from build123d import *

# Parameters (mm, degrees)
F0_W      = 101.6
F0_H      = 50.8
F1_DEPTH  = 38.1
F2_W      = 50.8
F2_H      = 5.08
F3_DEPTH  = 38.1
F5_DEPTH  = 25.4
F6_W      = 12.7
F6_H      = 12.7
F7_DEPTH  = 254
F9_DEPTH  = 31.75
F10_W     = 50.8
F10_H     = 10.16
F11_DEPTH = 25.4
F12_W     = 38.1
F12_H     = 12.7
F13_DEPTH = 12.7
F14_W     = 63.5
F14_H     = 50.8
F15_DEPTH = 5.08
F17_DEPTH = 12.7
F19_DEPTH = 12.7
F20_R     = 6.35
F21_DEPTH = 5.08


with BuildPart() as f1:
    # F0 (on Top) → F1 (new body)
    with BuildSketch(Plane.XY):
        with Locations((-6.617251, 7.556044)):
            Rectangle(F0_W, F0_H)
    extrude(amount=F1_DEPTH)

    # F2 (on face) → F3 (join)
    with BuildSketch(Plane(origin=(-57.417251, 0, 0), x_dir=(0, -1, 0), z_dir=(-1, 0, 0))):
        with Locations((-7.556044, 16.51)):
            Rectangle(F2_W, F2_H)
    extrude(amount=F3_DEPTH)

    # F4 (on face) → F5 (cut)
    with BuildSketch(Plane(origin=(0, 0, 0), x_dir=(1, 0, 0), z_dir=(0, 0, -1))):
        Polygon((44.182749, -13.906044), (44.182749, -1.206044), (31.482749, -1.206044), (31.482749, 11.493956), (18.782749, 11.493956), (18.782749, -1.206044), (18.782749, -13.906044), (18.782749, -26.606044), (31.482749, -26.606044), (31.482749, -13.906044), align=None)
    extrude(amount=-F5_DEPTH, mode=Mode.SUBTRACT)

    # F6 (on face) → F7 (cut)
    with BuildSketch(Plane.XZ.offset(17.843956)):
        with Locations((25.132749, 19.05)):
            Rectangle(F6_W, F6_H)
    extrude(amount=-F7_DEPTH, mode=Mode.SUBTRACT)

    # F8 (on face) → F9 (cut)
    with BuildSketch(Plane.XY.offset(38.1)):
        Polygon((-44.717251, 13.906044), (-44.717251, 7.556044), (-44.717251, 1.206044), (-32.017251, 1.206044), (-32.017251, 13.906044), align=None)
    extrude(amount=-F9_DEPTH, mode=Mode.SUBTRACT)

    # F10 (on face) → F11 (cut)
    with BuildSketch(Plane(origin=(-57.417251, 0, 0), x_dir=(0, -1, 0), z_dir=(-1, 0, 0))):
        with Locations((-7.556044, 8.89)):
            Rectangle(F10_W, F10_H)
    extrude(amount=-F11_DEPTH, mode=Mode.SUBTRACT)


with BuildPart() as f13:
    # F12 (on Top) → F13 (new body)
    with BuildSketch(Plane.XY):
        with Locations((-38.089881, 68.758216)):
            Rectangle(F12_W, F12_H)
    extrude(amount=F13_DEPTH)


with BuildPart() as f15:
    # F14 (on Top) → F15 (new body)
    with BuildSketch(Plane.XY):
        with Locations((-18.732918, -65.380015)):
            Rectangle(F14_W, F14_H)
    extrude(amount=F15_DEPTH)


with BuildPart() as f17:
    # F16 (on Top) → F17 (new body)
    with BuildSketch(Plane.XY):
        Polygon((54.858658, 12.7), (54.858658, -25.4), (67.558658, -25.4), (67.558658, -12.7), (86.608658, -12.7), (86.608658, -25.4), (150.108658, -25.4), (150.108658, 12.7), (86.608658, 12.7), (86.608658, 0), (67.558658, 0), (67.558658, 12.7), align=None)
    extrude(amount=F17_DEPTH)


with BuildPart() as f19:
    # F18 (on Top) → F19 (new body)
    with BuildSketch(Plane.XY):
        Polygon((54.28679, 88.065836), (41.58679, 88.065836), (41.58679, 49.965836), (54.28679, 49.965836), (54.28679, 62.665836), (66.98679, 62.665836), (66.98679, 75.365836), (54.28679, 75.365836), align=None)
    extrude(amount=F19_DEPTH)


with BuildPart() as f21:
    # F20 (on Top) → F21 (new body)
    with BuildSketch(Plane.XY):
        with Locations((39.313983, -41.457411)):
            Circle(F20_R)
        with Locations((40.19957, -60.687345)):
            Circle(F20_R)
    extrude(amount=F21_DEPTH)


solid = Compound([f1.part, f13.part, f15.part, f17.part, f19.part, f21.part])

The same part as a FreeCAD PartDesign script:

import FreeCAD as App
import Part
import Sketcher

V = App.Vector
Q = App.Units.Quantity

doc = App.newDocument("Part")
body = doc.addObject("PartDesign::Body", "Body")

# Sketch on XY plane
sketch1 = body.newObject("Sketcher::SketchObject", "Sketch")
sketch1.AttachmentSupport = (doc.getObject("XY_Plane"), [""])
sketch1.MapMode = "FlatFace"
sketch1.addGeometry([
    Part.LineSegment(V(-57, 33, 0), V(-57, -18, 0)),
    Part.LineSegment(V(-57, -18, 0), V(44, -18, 0)),
    Part.LineSegment(V(44, -18, 0), V(44, 33, 0)),
    Part.LineSegment(V(44, 33, 0), V(-57, 33, 0)),
], False)
sketch1.addConstraint([
    Sketcher.Constraint("Coincident", 0, 2, 1, 1),
    Sketcher.Constraint("Coincident", 1, 2, 2, 1),
    Sketcher.Constraint("Coincident", 2, 2, 3, 1),
    Sketcher.Constraint("Coincident", 3, 2, 0, 1),
    Sketcher.Constraint("Vertical", 0),
    Sketcher.Constraint("Horizontal", 1),
    Sketcher.Constraint("Vertical", 2),
    Sketcher.Constraint("Horizontal", 3),
    Sketcher.Constraint("DistanceX", 1, 1, 1, 2, Q("4 in")),
    Sketcher.Constraint("DistanceY", 0, 2, 0, 1, Q("2 in")),
    Sketcher.Constraint("DistanceX", 0, 2, -1, 1, Q("57.417251 mm")),
    Sketcher.Constraint("DistanceY", 0, 2, -1, 1, Q("17.843956 mm")),
])
pad1 = body.newObject("PartDesign::Pad", "Pad")
pad1.Profile = sketch1
pad1.Length = Q("1.5 in")

# Sketch on YZ plane
sketch2 = body.newObject("Sketcher::SketchObject", "Sketch001")
sketch2.AttachmentSupport = (doc.getObject("YZ_Plane"), [""])
sketch2.MapMode = "FlatFace"
sketch2.AttachmentOffset = App.Placement(V(0, 0, -57.417251), App.Rotation())
sketch2.addGeometry([
    Part.LineSegment(V(33, 19, 0), V(33, 14, 0)),
    Part.LineSegment(V(33, 14, 0), V(-18, 14, 0)),
    Part.LineSegment(V(-18, 14, 0), V(-18, 19, 0)),
    Part.LineSegment(V(-18, 19, 0), V(33, 19, 0)),
], False)
sketch2.addConstraint([
    Sketcher.Constraint("Coincident", 0, 2, 1, 1),
    Sketcher.Constraint("Coincident", 1, 2, 2, 1),
    Sketcher.Constraint("Coincident", 2, 2, 3, 1),
    Sketcher.Constraint("Coincident", 3, 2, 0, 1),
    Sketcher.Constraint("Vertical", 0),
    Sketcher.Constraint("Horizontal", 1),
    Sketcher.Constraint("Vertical", 2),
    Sketcher.Constraint("Horizontal", 3),
    Sketcher.Constraint("DistanceX", 1, 2, 1, 1, Q("2 in")),
    Sketcher.Constraint("DistanceY", 0, 2, 0, 1, Q("0.2 in")),
    Sketcher.Constraint("DistanceY", -1, 1, 0, 2, Q("0.55 in")),
    Sketcher.Constraint("DistanceX", -1, 1, 0, 2, Q("32.956044 mm")),
])
pad2 = body.newObject("PartDesign::Pad", "Pad001")
pad2.Profile = sketch2
pad2.Length = Q("1.5 in")
pad2.Reversed = True

# Sketch on XY plane
sketch3 = body.newObject("Sketcher::SketchObject", "Sketch002")
sketch3.AttachmentSupport = (doc.getObject("XY_Plane"), [""])
sketch3.MapMode = "FlatFace"
sketch3.addGeometry([
    Part.LineSegment(V(44, 14, 0), V(44, 1, 0)),  # 0
    Part.LineSegment(V(44, 1, 0), V(31, 1, 0)),  # 1
    Part.LineSegment(V(31, 1, 0), V(31, -11, 0)),  # 2
    Part.LineSegment(V(31, -11, 0), V(19, -11, 0)),  # 3
    Part.LineSegment(V(19, -11, 0), V(19, 27, 0)),  # 4
    Part.LineSegment(V(19, 27, 0), V(31, 27, 0)),  # 5
    Part.LineSegment(V(31, 27, 0), V(31, 14, 0)),  # 6
    Part.LineSegment(V(31, 14, 0), V(44, 14, 0)),  # 7
], False)
sketch3.addConstraint([
    Sketcher.Constraint("Coincident", 0, 2, 1, 1),
    Sketcher.Constraint("Coincident", 1, 2, 2, 1),
    Sketcher.Constraint("Coincident", 2, 2, 3, 1),
    Sketcher.Constraint("Coincident", 3, 2, 4, 1),
    Sketcher.Constraint("Coincident", 4, 2, 5, 1),
    Sketcher.Constraint("Coincident", 5, 2, 6, 1),
    Sketcher.Constraint("Coincident", 6, 2, 7, 1),
    Sketcher.Constraint("Coincident", 7, 2, 0, 1),
    Sketcher.Constraint("Vertical", 0),
    Sketcher.Constraint("Horizontal", 1),
    Sketcher.Constraint("Vertical", 2),
    Sketcher.Constraint("Horizontal", 3),
    Sketcher.Constraint("Vertical", 4),
    Sketcher.Constraint("Horizontal", 5),
    Sketcher.Constraint("Vertical", 6),
    Sketcher.Constraint("Horizontal", 7),
    Sketcher.Constraint("Vertical", 2, 2, 5, 2),
    Sketcher.Constraint("Equal", 1, 3),
    Sketcher.Constraint("Equal", 7, 0),
    Sketcher.Constraint("Equal", 0, 2),
    Sketcher.Constraint("Equal", 2, 6),
    Sketcher.Constraint("DistanceX", 1, 2, 1, 1, Q("0.5 in")),
    Sketcher.Constraint("DistanceX", -1, 1, 0, 2, Q("44.182749 mm")),
    Sketcher.Constraint("DistanceY", -1, 1, 0, 2, Q("1.206044 mm")),
])
pocket1 = body.newObject("PartDesign::Pocket", "Pocket")
pocket1.Profile = sketch3
pocket1.Length = Q("1 in")
pocket1.Reversed = True

# Sketch on XZ plane
sketch4 = body.newObject("Sketcher::SketchObject", "Sketch003")
sketch4.AttachmentSupport = (doc.getObject("XZ_Plane"), [""])
sketch4.MapMode = "FlatFace"
sketch4.AttachmentOffset = App.Placement(V(0, 0, 17.843956), App.Rotation())
sketch4.addGeometry([
    Part.LineSegment(V(19, 25, 0), V(19, 13, 0)),
    Part.LineSegment(V(19, 13, 0), V(31, 13, 0)),
    Part.LineSegment(V(31, 13, 0), V(31, 25, 0)),
    Part.LineSegment(V(31, 25, 0), V(19, 25, 0)),
], False)
sketch4.addConstraint([
    Sketcher.Constraint("Coincident", 0, 2, 1, 1),
    Sketcher.Constraint("Coincident", 1, 2, 2, 1),
    Sketcher.Constraint("Coincident", 2, 2, 3, 1),
    Sketcher.Constraint("Coincident", 3, 2, 0, 1),
    Sketcher.Constraint("Vertical", 0),
    Sketcher.Constraint("Horizontal", 1),
    Sketcher.Constraint("Vertical", 2),
    Sketcher.Constraint("Horizontal", 3),
    Sketcher.Constraint("Equal", 3, 0),
    Sketcher.Constraint("DistanceX", 1, 1, 1, 2, Q("0.5 in")),
    Sketcher.Constraint("DistanceY", -1, 1, 2, 2, Q("1 in")),
    Sketcher.Constraint("DistanceX", -1, 1, 0, 2, Q("18.782749 mm")),
])
pocket2 = body.newObject("PartDesign::Pocket", "Pocket001")
pocket2.Profile = sketch4
pocket2.Length = Q("10 in")

# Sketch on XY plane
sketch5 = body.newObject("Sketcher::SketchObject", "Sketch004")
sketch5.AttachmentSupport = (doc.getObject("XY_Plane"), [""])
sketch5.MapMode = "FlatFace"
sketch5.AttachmentOffset = App.Placement(V(0, 0, 1.5 * 25.4), App.Rotation())
sketch5.addGeometry([
    Part.LineSegment(V(-45, 14, 0), V(-45, 1, 0)),
    Part.LineSegment(V(-45, 1, 0), V(-32, 1, 0)),
    Part.LineSegment(V(-32, 1, 0), V(-32, 14, 0)),
    Part.LineSegment(V(-32, 14, 0), V(-45, 14, 0)),
], False)
sketch5.addConstraint([
    Sketcher.Constraint("Coincident", 0, 2, 1, 1),
    Sketcher.Constraint("Coincident", 1, 2, 2, 1),
    Sketcher.Constraint("Coincident", 2, 2, 3, 1),
    Sketcher.Constraint("Coincident", 3, 2, 0, 1),
    Sketcher.Constraint("Vertical", 0),
    Sketcher.Constraint("Horizontal", 1),
    Sketcher.Constraint("Vertical", 2),
    Sketcher.Constraint("Horizontal", 3),
    Sketcher.Constraint("Equal", 3, 0),
    Sketcher.Constraint("DistanceX", 1, 1, 1, 2, Q("0.5 in")),
    Sketcher.Constraint("DistanceX", 0, 2, -1, 1, Q("44.717251 mm")),
    Sketcher.Constraint("DistanceY", -1, 1, 0, 2, Q("1.206044 mm")),
])
pocket3 = body.newObject("PartDesign::Pocket", "Pocket002")
pocket3.Profile = sketch5
pocket3.Length = Q("1.25 in")

# Sketch on YZ plane
sketch6 = body.newObject("Sketcher::SketchObject", "Sketch005")
sketch6.AttachmentSupport = (doc.getObject("YZ_Plane"), [""])
sketch6.MapMode = "FlatFace"
sketch6.AttachmentOffset = App.Placement(V(0, 0, -57.417251), App.Rotation())
sketch6.addGeometry([
    Part.LineSegment(V(33, 14, 0), V(33, 4, 0)),
    Part.LineSegment(V(33, 4, 0), V(-18, 4, 0)),
    Part.LineSegment(V(-18, 4, 0), V(-18, 14, 0)),
    Part.LineSegment(V(-18, 14, 0), V(33, 14, 0)),
], False)
sketch6.addConstraint([
    Sketcher.Constraint("Coincident", 0, 2, 1, 1),
    Sketcher.Constraint("Coincident", 1, 2, 2, 1),
    Sketcher.Constraint("Coincident", 2, 2, 3, 1),
    Sketcher.Constraint("Coincident", 3, 2, 0, 1),
    Sketcher.Constraint("Vertical", 0),
    Sketcher.Constraint("Horizontal", 1),
    Sketcher.Constraint("Vertical", 2),
    Sketcher.Constraint("Horizontal", 3),
    Sketcher.Constraint("DistanceX", 1, 2, 1, 1, Q("2 in")),
    Sketcher.Constraint("DistanceY", 0, 2, 0, 1, Q("0.4 in")),
    Sketcher.Constraint("DistanceY", -1, 1, 0, 2, Q("0.15 in")),
    Sketcher.Constraint("DistanceX", -1, 1, 0, 2, Q("32.956044 mm")),
])
pocket4 = body.newObject("PartDesign::Pocket", "Pocket003")
pocket4.Profile = sketch6
pocket4.Length = Q("1 in")
pocket4.Reversed = True
body2 = doc.addObject("PartDesign::Body", "Body001")

# Sketch on XY plane
sketch7 = body2.newObject("Sketcher::SketchObject", "Sketch006")
sketch7.AttachmentSupport = (doc.getObject("XY_Plane001"), [""])
sketch7.MapMode = "FlatFace"
sketch7.addGeometry([
    Part.LineSegment(V(-57, 75, 0), V(-57, 62, 0)),
    Part.LineSegment(V(-57, 62, 0), V(-19, 62, 0)),
    Part.LineSegment(V(-19, 62, 0), V(-19, 75, 0)),
    Part.LineSegment(V(-19, 75, 0), V(-57, 75, 0)),
], False)
sketch7.addConstraint([
    Sketcher.Constraint("Coincident", 0, 2, 1, 1),
    Sketcher.Constraint("Coincident", 1, 2, 2, 1),
    Sketcher.Constraint("Coincident", 2, 2, 3, 1),
    Sketcher.Constraint("Coincident", 3, 2, 0, 1),
    Sketcher.Constraint("Vertical", 0),
    Sketcher.Constraint("Horizontal", 1),
    Sketcher.Constraint("Vertical", 2),
    Sketcher.Constraint("Horizontal", 3),
    Sketcher.Constraint("DistanceX", 1, 1, 1, 2, Q("1.5 in")),
    Sketcher.Constraint("DistanceY", 0, 2, 0, 1, Q("0.5 in")),
    Sketcher.Constraint("DistanceX", 0, 2, -1, 1, Q("57.139881 mm")),
    Sketcher.Constraint("DistanceY", -1, 1, 0, 2, Q("62.408216 mm")),
])
pad3 = body2.newObject("PartDesign::Pad", "Pad002")
pad3.Profile = sketch7
pad3.Length = Q("0.5 in")
body3 = doc.addObject("PartDesign::Body", "Body002")

# Sketch on XY plane
sketch8 = body3.newObject("Sketcher::SketchObject", "Sketch007")
sketch8.AttachmentSupport = (doc.getObject("XY_Plane002"), [""])
sketch8.MapMode = "FlatFace"
sketch8.addGeometry([
    Part.LineSegment(V(-50, -40, 0), V(-50, -91, 0)),
    Part.LineSegment(V(-50, -91, 0), V(13, -91, 0)),
    Part.LineSegment(V(13, -91, 0), V(13, -40, 0)),
    Part.LineSegment(V(13, -40, 0), V(-50, -40, 0)),
], False)
sketch8.addConstraint([
    Sketcher.Constraint("Coincident", 0, 2, 1, 1),
    Sketcher.Constraint("Coincident", 1, 2, 2, 1),
    Sketcher.Constraint("Coincident", 2, 2, 3, 1),
    Sketcher.Constraint("Coincident", 3, 2, 0, 1),
    Sketcher.Constraint("Vertical", 0),
    Sketcher.Constraint("Horizontal", 1),
    Sketcher.Constraint("Vertical", 2),
    Sketcher.Constraint("Horizontal", 3),
    Sketcher.Constraint("DistanceY", 0, 2, 0, 1, Q("2 in")),
    Sketcher.Constraint("DistanceX", 1, 1, 1, 2, Q("2.5 in")),
    Sketcher.Constraint("DistanceX", 0, 2, -1, 1, Q("50.482918 mm")),
    Sketcher.Constraint("DistanceY", 0, 2, -1, 1, Q("90.780015 mm")),
])
pad4 = body3.newObject("PartDesign::Pad", "Pad003")
pad4.Profile = sketch8
pad4.Length = Q("0.2 in")
body4 = doc.addObject("PartDesign::Body", "Body003")

# Sketch on XY plane
sketch9 = body4.newObject("Sketcher::SketchObject", "Sketch008")
sketch9.AttachmentSupport = (doc.getObject("XY_Plane003"), [""])
sketch9.MapMode = "FlatFace"
sketch9.addGeometry([
    Part.LineSegment(V(55, 13, 0), V(55, -25, 0)),  # 0
    Part.LineSegment(V(55, -25, 0), V(68, -25, 0)),  # 1
    Part.LineSegment(V(68, -25, 0), V(68, -13, 0)),  # 2
    Part.LineSegment(V(68, -13, 0), V(87, -13, 0)),  # 3
    Part.LineSegment(V(87, -13, 0), V(87, -25, 0)),  # 4
    Part.LineSegment(V(87, -25, 0), V(150, -25, 0)),  # 5
    Part.LineSegment(V(150, -25, 0), V(150, 13, 0)),  # 6
    Part.LineSegment(V(150, 13, 0), V(87, 13, 0)),  # 7
    Part.LineSegment(V(87, 13, 0), V(87, 0, 0)),  # 8
    Part.LineSegment(V(87, 0, 0), V(68, 0, 0)),  # 9
    Part.LineSegment(V(68, 0, 0), V(68, 13, 0)),  # 10
    Part.LineSegment(V(68, 13, 0), V(55, 13, 0)),  # 11
], False)
sketch9.addConstraint([
    Sketcher.Constraint("Coincident", 0, 2, 1, 1),
    Sketcher.Constraint("Coincident", 1, 2, 2, 1),
    Sketcher.Constraint("Coincident", 2, 2, 3, 1),
    Sketcher.Constraint("Coincident", 3, 2, 4, 1),
    Sketcher.Constraint("Coincident", 4, 2, 5, 1),
    Sketcher.Constraint("Coincident", 5, 2, 6, 1),
    Sketcher.Constraint("Coincident", 6, 2, 7, 1),
    Sketcher.Constraint("Coincident", 7, 2, 8, 1),
    Sketcher.Constraint("Coincident", 8, 2, 9, 1),
    Sketcher.Constraint("Coincident", 9, 2, 10, 1),
    Sketcher.Constraint("Coincident", 10, 2, 11, 1),
    Sketcher.Constraint("Coincident", 11, 2, 0, 1),
    Sketcher.Constraint("Vertical", 0),
    Sketcher.Constraint("Horizontal", 1),
    Sketcher.Constraint("Vertical", 2),
    Sketcher.Constraint("Horizontal", 3),
    Sketcher.Constraint("Vertical", 4),
    Sketcher.Constraint("Horizontal", 5),
    Sketcher.Constraint("Vertical", 6),
    Sketcher.Constraint("Horizontal", 7),
    Sketcher.Constraint("Vertical", 8),
    Sketcher.Constraint("Horizontal", 9),
    Sketcher.Constraint("Vertical", 10),
    Sketcher.Constraint("Horizontal", 11),
    Sketcher.Constraint("Symmetric", 3, 2, 7, 2, -1),
    Sketcher.Constraint("Symmetric", 2, 2, 10, 2, -1),
    Sketcher.Constraint("PointOnObject", 8, 2, -1),
    Sketcher.Constraint("Horizontal", 1, 2, 4, 2),
    Sketcher.Constraint("Equal", 11, 2),
    Sketcher.Constraint("Equal", 4, 8),
    Sketcher.Constraint("DistanceX", 1, 1, 1, 2, Q("0.5 in")),
    Sketcher.Constraint("DistanceX", 5, 1, 5, 2, Q("2.5 in")),
    Sketcher.Constraint("DistanceX", 3, 1, 3, 2, Q("0.75 in")),
    Sketcher.Constraint("DistanceX", -1, 1, 3, 2, Q("86.608658 mm")),
])
pad5 = body4.newObject("PartDesign::Pad", "Pad004")
pad5.Profile = sketch9
pad5.Length = Q("0.5 in")
body5 = doc.addObject("PartDesign::Body", "Body004")

# Sketch on XY plane
sketch10 = body5.newObject("Sketcher::SketchObject", "Sketch009")
sketch10.AttachmentSupport = (doc.getObject("XY_Plane004"), [""])
sketch10.MapMode = "FlatFace"
sketch10.addGeometry([
    Part.LineSegment(V(54, 88, 0), V(42, 88, 0)),  # 0
    Part.LineSegment(V(42, 88, 0), V(42, 50, 0)),  # 1
    Part.LineSegment(V(42, 50, 0), V(54, 50, 0)),  # 2
    Part.LineSegment(V(54, 50, 0), V(54, 63, 0)),  # 3
    Part.LineSegment(V(54, 63, 0), V(67, 63, 0)),  # 4
    Part.LineSegment(V(67, 63, 0), V(67, 75, 0)),  # 5
    Part.LineSegment(V(67, 75, 0), V(54, 75, 0)),  # 6
    Part.LineSegment(V(54, 75, 0), V(54, 88, 0)),  # 7
], False)
sketch10.addConstraint([
    Sketcher.Constraint("Coincident", 0, 2, 1, 1),
    Sketcher.Constraint("Coincident", 1, 2, 2, 1),
    Sketcher.Constraint("Coincident", 2, 2, 3, 1),
    Sketcher.Constraint("Coincident", 3, 2, 4, 1),
    Sketcher.Constraint("Coincident", 4, 2, 5, 1),
    Sketcher.Constraint("Coincident", 5, 2, 6, 1),
    Sketcher.Constraint("Coincident", 6, 2, 7, 1),
    Sketcher.Constraint("Coincident", 7, 2, 0, 1),
    Sketcher.Constraint("Horizontal", 0),
    Sketcher.Constraint("Vertical", 1),
    Sketcher.Constraint("Horizontal", 2),
    Sketcher.Constraint("Vertical", 3),
    Sketcher.Constraint("Horizontal", 4),
    Sketcher.Constraint("Vertical", 5),
    Sketcher.Constraint("Horizontal", 6),
    Sketcher.Constraint("Vertical", 7),
    Sketcher.Constraint("Vertical", 3, 2, 6, 2),
    Sketcher.Constraint("Equal", 2, 4),
    Sketcher.Constraint("Equal", 6, 3),
    Sketcher.Constraint("Equal", 3, 5),
    Sketcher.Constraint("Equal", 5, 7),
    Sketcher.Constraint("DistanceX", 0, 2, 0, 1, Q("0.5 in")),
    Sketcher.Constraint("DistanceX", -1, 1, 0, 2, Q("41.58679 mm")),
    Sketcher.Constraint("DistanceY", -1, 1, 0, 2, Q("88.065836 mm")),
])
pad6 = body5.newObject("PartDesign::Pad", "Pad005")
pad6.Profile = sketch10
pad6.Length = Q("0.5 in")
body6 = doc.addObject("PartDesign::Body", "Body005")
body6.AllowCompound = True

# Sketch on XY plane
sketch11 = body6.newObject("Sketcher::SketchObject", "Sketch010")
sketch11.AttachmentSupport = (doc.getObject("XY_Plane005"), [""])
sketch11.MapMode = "FlatFace"
sketch11.addGeometry([
    Part.Circle(V(39, -41, 0), V(0, 0, 1), 6),
    Part.Circle(V(40, -61, 0), V(0, 0, 1), 6),
], False)
sketch11.addConstraint([
    Sketcher.Constraint("Equal", 0, 1),
    Sketcher.Constraint("Diameter", 0, Q("0.5 in")),
    Sketcher.Constraint("DistanceY", 0, 3, -1, 1, Q("41.457411 mm")),
    Sketcher.Constraint("DistanceX", -1, 1, 1, 3, Q("40.19957 mm")),
    Sketcher.Constraint("DistanceX", -1, 1, 0, 3, Q("39.313983 mm")),
    Sketcher.Constraint("DistanceY", 1, 3, -1, 1, Q("60.687345 mm")),
])
pad7 = body6.newObject("PartDesign::Pad", "Pad006")
pad7.Profile = sketch11
pad7.Length = Q("0.2 in")

doc.recompute()
